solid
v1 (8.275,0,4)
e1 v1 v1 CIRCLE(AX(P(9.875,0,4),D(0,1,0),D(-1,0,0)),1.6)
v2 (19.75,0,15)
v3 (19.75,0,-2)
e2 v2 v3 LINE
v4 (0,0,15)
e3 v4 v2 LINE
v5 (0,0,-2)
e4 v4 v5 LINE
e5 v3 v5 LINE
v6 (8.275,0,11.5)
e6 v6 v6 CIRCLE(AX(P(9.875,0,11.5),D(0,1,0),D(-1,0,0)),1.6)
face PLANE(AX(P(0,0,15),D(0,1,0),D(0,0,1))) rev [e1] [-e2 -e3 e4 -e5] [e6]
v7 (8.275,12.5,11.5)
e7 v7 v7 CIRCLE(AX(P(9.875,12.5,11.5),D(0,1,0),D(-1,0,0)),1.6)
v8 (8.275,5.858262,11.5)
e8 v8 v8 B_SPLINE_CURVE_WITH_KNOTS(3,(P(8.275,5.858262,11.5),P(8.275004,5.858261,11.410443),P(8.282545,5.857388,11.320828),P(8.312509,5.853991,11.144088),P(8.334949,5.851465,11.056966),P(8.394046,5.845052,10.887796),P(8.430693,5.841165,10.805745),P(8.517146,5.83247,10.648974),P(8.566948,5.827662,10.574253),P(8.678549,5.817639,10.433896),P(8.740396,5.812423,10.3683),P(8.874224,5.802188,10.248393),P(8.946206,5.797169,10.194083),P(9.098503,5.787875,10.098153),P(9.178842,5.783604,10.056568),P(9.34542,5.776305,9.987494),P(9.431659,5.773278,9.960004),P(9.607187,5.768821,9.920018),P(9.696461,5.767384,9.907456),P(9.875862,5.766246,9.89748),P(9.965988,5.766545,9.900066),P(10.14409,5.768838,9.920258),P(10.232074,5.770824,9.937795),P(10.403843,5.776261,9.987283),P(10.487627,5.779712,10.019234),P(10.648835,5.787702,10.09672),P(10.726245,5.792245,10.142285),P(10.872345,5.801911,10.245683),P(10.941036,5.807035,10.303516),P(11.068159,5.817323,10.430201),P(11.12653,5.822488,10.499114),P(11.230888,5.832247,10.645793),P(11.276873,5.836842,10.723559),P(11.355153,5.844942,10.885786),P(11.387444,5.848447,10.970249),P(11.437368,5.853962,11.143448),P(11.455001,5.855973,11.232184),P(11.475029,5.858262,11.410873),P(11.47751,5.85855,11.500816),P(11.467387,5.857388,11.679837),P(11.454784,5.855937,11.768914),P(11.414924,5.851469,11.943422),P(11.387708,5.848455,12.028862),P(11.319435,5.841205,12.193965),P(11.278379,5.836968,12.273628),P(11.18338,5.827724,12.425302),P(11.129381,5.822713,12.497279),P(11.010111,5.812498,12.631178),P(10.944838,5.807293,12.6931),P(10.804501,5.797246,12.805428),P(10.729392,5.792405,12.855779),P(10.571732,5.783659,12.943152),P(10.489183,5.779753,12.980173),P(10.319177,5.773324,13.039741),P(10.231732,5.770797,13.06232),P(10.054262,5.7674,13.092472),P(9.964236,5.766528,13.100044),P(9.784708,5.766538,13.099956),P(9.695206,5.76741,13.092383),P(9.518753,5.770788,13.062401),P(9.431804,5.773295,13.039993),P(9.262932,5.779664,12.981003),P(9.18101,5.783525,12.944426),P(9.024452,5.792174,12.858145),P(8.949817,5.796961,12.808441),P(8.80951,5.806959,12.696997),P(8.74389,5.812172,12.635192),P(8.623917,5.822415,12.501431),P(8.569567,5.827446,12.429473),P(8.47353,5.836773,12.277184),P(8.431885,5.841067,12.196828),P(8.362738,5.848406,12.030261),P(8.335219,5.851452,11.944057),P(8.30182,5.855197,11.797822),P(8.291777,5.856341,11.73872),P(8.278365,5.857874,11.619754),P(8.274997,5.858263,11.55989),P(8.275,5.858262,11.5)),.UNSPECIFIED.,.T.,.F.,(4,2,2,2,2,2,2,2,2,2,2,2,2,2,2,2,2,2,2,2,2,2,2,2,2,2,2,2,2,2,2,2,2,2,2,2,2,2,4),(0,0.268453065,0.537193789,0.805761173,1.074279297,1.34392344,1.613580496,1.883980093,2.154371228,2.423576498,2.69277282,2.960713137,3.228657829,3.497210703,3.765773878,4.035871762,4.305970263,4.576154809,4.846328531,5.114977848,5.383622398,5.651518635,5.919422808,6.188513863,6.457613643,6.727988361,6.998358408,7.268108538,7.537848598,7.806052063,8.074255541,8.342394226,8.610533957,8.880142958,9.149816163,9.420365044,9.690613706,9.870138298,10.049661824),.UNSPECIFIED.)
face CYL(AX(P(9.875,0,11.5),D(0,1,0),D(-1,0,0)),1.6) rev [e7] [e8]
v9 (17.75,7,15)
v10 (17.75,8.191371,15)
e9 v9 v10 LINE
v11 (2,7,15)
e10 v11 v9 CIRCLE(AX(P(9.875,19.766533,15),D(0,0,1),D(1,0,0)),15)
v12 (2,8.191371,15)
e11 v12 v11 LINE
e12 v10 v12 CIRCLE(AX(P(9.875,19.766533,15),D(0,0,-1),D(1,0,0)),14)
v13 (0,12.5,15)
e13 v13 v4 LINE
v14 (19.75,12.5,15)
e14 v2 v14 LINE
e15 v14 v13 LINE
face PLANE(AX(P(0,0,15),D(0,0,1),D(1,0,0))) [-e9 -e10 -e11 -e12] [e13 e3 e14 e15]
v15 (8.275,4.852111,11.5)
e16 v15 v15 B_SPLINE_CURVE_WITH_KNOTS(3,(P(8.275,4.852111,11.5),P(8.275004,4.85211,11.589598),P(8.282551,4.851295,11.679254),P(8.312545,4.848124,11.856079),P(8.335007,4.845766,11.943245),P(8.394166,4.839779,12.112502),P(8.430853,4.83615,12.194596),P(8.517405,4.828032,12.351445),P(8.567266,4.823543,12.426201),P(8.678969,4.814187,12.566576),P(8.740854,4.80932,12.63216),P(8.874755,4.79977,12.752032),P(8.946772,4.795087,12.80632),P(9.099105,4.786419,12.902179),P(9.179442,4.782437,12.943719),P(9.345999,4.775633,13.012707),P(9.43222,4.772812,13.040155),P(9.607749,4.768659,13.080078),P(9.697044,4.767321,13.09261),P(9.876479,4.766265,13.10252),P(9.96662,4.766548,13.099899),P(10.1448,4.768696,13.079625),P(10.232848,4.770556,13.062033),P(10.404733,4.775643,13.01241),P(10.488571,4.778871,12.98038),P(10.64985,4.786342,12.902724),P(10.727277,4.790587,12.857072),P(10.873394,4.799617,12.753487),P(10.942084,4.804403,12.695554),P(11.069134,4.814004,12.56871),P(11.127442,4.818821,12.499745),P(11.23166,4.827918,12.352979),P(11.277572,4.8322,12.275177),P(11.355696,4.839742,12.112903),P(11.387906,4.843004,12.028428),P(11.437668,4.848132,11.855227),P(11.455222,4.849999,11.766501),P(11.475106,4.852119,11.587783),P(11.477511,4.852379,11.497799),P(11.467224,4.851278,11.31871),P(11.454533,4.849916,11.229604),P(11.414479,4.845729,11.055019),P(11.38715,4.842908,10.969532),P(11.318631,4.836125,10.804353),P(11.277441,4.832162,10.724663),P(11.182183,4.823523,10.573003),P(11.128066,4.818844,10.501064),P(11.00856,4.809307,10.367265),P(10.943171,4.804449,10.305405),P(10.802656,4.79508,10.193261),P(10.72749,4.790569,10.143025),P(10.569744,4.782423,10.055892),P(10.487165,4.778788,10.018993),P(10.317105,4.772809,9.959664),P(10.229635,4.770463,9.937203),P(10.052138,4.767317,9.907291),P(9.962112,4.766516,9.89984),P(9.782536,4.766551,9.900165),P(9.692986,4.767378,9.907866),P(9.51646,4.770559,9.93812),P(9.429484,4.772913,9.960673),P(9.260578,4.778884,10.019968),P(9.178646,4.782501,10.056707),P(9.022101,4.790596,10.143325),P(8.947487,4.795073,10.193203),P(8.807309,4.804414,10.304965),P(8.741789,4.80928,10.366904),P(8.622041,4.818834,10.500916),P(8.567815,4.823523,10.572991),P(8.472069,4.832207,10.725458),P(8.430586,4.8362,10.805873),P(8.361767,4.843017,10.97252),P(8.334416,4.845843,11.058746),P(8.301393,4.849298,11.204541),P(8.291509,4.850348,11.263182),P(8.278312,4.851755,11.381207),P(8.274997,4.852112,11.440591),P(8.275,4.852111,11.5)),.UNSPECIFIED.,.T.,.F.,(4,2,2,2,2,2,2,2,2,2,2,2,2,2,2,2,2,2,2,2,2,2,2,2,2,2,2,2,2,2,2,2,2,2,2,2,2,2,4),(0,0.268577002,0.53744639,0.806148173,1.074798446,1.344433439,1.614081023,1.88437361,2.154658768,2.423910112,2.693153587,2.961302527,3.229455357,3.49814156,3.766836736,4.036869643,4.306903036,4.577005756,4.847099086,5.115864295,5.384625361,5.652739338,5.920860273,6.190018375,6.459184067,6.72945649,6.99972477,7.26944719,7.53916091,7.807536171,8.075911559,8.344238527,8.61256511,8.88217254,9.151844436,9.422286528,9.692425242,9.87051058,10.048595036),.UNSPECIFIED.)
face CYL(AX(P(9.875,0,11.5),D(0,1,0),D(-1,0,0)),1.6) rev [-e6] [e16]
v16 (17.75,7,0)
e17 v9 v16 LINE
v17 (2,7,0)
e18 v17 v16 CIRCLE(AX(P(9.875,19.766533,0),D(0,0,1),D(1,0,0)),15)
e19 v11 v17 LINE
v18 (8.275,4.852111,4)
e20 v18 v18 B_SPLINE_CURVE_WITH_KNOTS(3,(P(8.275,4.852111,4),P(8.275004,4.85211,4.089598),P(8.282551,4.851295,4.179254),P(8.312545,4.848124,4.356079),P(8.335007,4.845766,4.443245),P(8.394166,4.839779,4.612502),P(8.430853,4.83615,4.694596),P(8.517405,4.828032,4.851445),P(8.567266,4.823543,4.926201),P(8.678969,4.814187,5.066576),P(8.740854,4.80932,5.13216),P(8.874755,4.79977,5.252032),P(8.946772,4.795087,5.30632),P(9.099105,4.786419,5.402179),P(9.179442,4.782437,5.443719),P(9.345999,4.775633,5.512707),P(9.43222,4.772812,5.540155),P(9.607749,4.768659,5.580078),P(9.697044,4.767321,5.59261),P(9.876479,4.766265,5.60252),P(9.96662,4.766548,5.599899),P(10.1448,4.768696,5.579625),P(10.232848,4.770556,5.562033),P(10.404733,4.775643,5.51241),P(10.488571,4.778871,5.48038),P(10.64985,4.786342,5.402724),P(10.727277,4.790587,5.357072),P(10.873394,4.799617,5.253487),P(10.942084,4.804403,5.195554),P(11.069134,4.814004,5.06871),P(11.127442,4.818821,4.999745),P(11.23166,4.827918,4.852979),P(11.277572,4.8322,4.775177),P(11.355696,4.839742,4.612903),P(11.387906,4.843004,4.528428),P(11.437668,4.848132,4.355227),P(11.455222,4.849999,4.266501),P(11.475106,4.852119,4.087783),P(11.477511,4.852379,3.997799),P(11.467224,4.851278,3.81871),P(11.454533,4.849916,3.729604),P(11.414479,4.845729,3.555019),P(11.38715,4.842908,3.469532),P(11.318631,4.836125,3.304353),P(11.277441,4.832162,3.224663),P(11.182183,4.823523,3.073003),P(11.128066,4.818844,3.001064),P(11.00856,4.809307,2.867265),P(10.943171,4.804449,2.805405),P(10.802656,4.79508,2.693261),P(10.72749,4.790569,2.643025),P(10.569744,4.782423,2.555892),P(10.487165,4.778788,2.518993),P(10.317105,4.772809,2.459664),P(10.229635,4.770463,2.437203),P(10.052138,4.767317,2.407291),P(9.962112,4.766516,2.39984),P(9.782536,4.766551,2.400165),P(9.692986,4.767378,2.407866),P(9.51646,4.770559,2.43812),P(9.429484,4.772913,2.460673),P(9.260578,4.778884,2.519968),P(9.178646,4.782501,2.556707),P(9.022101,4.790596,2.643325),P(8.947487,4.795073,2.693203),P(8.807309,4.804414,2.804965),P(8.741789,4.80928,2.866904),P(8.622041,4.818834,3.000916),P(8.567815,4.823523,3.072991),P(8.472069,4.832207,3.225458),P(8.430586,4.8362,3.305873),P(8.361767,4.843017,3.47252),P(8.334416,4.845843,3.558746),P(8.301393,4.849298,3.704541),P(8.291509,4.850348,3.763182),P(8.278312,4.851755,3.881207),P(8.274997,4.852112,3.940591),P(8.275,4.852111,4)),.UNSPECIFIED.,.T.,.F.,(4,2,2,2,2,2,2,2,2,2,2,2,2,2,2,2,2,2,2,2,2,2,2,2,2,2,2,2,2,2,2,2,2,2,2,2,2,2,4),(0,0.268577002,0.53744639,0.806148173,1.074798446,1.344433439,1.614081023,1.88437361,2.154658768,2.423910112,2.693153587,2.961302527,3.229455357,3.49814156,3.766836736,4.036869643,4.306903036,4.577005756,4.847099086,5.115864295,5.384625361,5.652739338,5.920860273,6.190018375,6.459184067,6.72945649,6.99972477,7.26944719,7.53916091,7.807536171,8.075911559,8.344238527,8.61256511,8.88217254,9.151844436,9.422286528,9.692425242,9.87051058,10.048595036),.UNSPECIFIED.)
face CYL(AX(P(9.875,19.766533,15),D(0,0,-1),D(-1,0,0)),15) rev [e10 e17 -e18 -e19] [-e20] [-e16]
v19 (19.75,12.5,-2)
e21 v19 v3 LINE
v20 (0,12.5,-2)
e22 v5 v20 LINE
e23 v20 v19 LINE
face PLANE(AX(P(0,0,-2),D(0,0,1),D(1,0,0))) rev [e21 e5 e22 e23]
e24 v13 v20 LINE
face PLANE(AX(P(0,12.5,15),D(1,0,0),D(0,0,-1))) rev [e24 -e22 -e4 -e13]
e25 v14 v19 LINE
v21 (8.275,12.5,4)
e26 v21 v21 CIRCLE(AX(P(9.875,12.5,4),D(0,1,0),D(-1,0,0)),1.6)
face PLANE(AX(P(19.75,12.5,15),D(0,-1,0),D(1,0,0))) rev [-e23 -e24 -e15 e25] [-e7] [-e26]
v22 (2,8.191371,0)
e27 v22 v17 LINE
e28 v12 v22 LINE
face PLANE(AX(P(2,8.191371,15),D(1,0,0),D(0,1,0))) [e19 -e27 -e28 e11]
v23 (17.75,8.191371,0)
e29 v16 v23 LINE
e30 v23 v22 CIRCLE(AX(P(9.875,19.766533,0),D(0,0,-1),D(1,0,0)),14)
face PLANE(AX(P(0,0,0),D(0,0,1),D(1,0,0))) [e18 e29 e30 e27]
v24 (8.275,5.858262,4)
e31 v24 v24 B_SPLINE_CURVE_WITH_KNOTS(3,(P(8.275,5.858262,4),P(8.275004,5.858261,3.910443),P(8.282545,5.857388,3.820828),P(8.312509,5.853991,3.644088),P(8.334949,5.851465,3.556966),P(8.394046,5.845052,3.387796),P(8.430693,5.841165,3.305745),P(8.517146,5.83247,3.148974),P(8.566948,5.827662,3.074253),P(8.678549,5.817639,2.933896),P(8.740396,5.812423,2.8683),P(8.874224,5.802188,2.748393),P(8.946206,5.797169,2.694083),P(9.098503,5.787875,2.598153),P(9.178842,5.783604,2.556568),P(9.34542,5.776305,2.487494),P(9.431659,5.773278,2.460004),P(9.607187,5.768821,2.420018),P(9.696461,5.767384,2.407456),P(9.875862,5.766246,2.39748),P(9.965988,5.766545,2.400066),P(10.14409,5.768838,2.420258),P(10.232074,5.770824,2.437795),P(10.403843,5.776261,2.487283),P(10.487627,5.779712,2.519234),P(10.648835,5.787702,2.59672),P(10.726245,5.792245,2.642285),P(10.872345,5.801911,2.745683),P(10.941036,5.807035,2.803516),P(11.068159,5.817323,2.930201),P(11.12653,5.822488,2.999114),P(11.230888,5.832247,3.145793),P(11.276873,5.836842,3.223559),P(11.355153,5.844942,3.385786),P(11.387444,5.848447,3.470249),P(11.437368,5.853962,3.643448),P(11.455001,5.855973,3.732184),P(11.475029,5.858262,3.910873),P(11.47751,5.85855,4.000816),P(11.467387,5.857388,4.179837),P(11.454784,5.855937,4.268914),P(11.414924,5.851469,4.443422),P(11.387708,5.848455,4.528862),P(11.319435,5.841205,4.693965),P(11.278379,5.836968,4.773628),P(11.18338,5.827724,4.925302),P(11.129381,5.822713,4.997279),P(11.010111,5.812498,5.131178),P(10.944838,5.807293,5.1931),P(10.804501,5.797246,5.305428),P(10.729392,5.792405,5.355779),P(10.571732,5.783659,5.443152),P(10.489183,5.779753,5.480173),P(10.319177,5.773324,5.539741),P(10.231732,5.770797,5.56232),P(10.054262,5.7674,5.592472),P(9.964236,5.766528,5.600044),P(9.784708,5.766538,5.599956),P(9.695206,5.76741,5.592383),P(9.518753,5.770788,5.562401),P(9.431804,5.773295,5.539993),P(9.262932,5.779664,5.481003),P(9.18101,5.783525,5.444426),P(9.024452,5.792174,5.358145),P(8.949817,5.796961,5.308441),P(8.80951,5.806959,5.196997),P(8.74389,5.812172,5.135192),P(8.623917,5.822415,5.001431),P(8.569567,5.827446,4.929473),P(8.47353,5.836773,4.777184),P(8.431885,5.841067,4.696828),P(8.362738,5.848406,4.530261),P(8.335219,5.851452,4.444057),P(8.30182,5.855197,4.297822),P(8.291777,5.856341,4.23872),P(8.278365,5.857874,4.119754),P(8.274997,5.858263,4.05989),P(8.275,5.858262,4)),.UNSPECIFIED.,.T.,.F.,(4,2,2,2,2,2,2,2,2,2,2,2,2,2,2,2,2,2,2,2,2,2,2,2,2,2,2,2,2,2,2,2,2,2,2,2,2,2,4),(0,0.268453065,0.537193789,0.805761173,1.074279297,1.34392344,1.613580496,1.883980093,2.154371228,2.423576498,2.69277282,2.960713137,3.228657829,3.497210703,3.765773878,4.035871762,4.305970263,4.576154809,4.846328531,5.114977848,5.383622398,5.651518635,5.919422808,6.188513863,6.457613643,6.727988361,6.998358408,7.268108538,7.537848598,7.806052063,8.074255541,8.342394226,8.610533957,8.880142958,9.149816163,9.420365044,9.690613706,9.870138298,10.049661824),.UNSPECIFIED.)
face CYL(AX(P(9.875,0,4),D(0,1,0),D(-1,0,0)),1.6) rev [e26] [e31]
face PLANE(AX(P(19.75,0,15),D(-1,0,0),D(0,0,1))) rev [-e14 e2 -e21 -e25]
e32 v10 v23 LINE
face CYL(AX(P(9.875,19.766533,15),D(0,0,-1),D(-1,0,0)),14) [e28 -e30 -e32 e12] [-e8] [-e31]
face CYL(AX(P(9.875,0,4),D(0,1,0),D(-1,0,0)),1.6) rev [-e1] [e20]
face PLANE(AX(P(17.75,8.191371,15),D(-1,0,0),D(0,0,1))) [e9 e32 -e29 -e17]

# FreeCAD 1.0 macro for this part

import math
import FreeCAD as App
import Part
import Sketcher

V = App.Vector

doc = App.newDocument("Part")
body = doc.addObject("PartDesign::Body", "Body")

# Sketch on XY plane
sketch1 = body.newObject("Sketcher::SketchObject", "Sketch")
sketch1.AttachmentSupport = (doc.getObject("XY_Plane"), [""])
sketch1.MapMode = "FlatFace"
sketch1.addGeometry([
    Part.LineSegment(V(0, 12.5, 0), V(0, 0, 0)),  # 0
    Part.LineSegment(V(0, 0, 0), V(19.8, 0, 0)),  # 1
    Part.LineSegment(V(19.8, 0, 0), V(19.8, 12.5, 0)),  # 2
    Part.LineSegment(V(19.8, 12.5, 0), V(0, 12.5, 0)),  # 3
    Part.ArcOfCircle(Part.Circle(V(9.9, 19.8, 0), V(0, 0, 1), 14), math.radians(-124), math.radians(-56)),  # 4
    Part.LineSegment(V(17.8, 8.2, 0), V(17.8, 7, 0)),  # 5
    Part.ArcOfCircle(Part.Circle(V(9.9, 19.8, 0), V(0, 0, 1), 15), math.radians(-122), math.radians(-58)),  # 6
    Part.LineSegment(V(2, 7, 0), V(2, 8.2, 0)),  # 7
], False)
sketch1.addConstraint([
    Sketcher.Constraint("Coincident", 0, 2, 1, 1),
    Sketcher.Constraint("Coincident", 1, 2, 2, 1),
    Sketcher.Constraint("Coincident", 2, 2, 3, 1),
    Sketcher.Constraint("Coincident", 3, 2, 0, 1),
    Sketcher.Constraint("Coincident", 4, 2, 5, 1),
    Sketcher.Constraint("Coincident", 5, 2, 6, 2),
    Sketcher.Constraint("Coincident", 6, 1, 7, 1),
    Sketcher.Constraint("Coincident", 7, 2, 4, 1),
    Sketcher.Constraint("Vertical", 0),
    Sketcher.Constraint("Horizontal", 1),
    Sketcher.Constraint("Vertical", 2),
    Sketcher.Constraint("Horizontal", 3),
    Sketcher.Constraint("Vertical", 5),
    Sketcher.Constraint("Vertical", 7),
    Sketcher.Constraint("Coincident", 0, 2, -1, 1),
    Sketcher.Constraint("Coincident", 6, 3, 4, 3),
    Sketcher.Constraint("Horizontal", 5, 2, 6, 1),
    Sketcher.Constraint("Radius", 4, 14.0),
    Sketcher.Constraint("Radius", 6, 15.0),
    Sketcher.Constraint("DistanceY", 0, 2, 0, 1, 12.5),
    Sketcher.Constraint("DistanceY", -1, 1, 5, 2, 7.0),
    Sketcher.Constraint("DistanceX", -1, 1, 6, 1, 2.0),
    Sketcher.Constraint("DistanceX", 4, 2, 2, 2, 2.0),
    Sketcher.Constraint("DistanceX", 1, 1, 1, 2, 19.75),
])
pad1 = body.newObject("PartDesign::Pad", "Pad")
pad1.Profile = sketch1
pad1.Length = 15

# Sketch on XZ plane
sketch2 = body.newObject("Sketcher::SketchObject", "Sketch001")
sketch2.AttachmentSupport = (doc.getObject("XZ_Plane"), [""])
sketch2.MapMode = "FlatFace"
sketch2.AttachmentOffset = App.Placement(V(0, 0, -12.5), App.Rotation())
sketch2.addGeometry([
    Part.Circle(V(9.9, 11.5, 0), V(0, 0, 1), 1.6),
    Part.Circle(V(9.9, 4, 0), V(0, 0, 1), 1.6),
], False)
sketch2.addConstraint([
    Sketcher.Constraint("Equal", 0, 1),
    Sketcher.Constraint("Vertical", 0, 3, 1, 3),
    Sketcher.Constraint("Diameter", 0, 3.2),
    Sketcher.Constraint("DistanceY", -1, 1, 1, 3, 4.0),
    Sketcher.Constraint("DistanceY", -1, 1, 0, 3, 11.5),
    Sketcher.Constraint("DistanceX", -1, 1, 0, 3, 9.875),
])
pocket1 = body.newObject("PartDesign::Pocket", "Pocket")
pocket1.Profile = sketch2
pocket1.Type = "ThroughAll"
pocket1.Reversed = True

# Sketch on XY plane
sketch3 = body.newObject("Sketcher::SketchObject", "Sketch002")
sketch3.AttachmentSupport = (doc.getObject("XY_Plane"), [""])
sketch3.MapMode = "FlatFace"
sketch3.addGeometry([
    Part.LineSegment(V(20, 12, 0), V(20, 0, 0)),
    Part.LineSegment(V(20, 0, 0), V(0, 0, 0)),
    Part.LineSegment(V(0, 0, 0), V(0, 12, 0)),
    Part.LineSegment(V(0, 12, 0), V(20, 12, 0)),
], False)
sketch3.addConstraint([
    Sketcher.Constraint("Coincident", 0, 2, 1, 1),
    Sketcher.Constraint("Coincident", 1, 2, 2, 1),
    Sketcher.Constraint("Coincident", 2, 2, 3, 1),
    Sketcher.Constraint("Coincident", 3, 2, 0, 1),
    Sketcher.Constraint("Vertical", 0),
    Sketcher.Constraint("Horizontal", 1),
    Sketcher.Constraint("Vertical", 2),
    Sketcher.Constraint("Horizontal", 3),
    Sketcher.Constraint("Coincident", 1, 2, -1, 1),
    Sketcher.Constraint("DistanceY", 0, 2, 0, 1, 12.5),
    Sketcher.Constraint("DistanceX", 1, 2, 1, 1, 19.75),
])
pad2 = body.newObject("PartDesign::Pad", "Pad001")
pad2.Profile = sketch3
pad2.Length = 2
pad2.Reversed = True

doc.recompute()
